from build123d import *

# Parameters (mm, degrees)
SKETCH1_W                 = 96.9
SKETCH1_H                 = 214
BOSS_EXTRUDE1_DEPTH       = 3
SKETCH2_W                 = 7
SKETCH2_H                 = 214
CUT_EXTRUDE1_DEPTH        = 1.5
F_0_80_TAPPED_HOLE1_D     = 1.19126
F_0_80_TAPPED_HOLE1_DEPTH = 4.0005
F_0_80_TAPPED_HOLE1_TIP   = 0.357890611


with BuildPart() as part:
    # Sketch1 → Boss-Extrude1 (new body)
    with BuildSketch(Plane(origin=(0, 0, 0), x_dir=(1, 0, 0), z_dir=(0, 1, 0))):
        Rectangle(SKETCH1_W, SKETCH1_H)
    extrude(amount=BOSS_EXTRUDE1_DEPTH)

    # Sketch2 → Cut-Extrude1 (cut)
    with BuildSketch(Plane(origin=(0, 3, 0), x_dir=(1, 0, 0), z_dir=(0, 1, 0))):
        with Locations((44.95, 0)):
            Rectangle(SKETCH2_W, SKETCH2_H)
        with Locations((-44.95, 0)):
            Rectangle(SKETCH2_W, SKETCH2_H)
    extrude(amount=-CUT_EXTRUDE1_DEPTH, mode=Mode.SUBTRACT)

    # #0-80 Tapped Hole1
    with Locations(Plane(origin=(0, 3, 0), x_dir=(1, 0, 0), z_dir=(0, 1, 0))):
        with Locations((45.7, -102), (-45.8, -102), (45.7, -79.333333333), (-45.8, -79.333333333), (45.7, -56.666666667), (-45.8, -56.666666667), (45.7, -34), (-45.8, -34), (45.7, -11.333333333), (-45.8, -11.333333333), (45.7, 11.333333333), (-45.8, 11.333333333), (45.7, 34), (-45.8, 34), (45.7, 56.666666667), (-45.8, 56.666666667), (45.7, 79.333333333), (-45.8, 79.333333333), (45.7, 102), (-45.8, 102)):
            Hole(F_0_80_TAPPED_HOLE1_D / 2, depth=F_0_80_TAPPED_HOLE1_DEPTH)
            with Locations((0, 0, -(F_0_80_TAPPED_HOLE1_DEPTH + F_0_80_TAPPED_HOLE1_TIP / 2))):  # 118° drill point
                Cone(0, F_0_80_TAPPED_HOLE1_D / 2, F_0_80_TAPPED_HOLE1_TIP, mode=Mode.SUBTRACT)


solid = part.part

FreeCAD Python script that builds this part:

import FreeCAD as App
import Part
import Sketcher
Q = App.Units.Quantity


def add_polygon(sketch, points):
    """Adds a closed chain of lines whose ends are joined by coincident constraints."""
    first, n = sketch.GeometryCount, len(points)
    for a, b in zip(points, points[1:] + points[:1]):
        sketch.addGeometry(Part.LineSegment(App.Vector(*a, 0), App.Vector(*b, 0)), False)
    for i in range(n):
        sketch.addConstraint(Sketcher.Constraint("Coincident", first + i, 2, first + (i + 1) % n, 1))

doc = App.newDocument("Part")
body = doc.addObject("PartDesign::Body", "Body")

# Sketch on XZ plane
sketch1 = body.newObject("Sketcher::SketchObject", "Sketch")
sketch1.AttachmentSupport = (doc.getObject("XZ_Plane"), [""])
sketch1.MapMode = "FlatFace"
add_polygon(sketch1, [(-48.45, -107), (-48.45, 107), (48.45, 107), (48.45, -107)])  # lines 0-3
sketch1.addConstraint([
    Sketcher.Constraint("Vertical", 0),
    Sketcher.Constraint("Horizontal", 1),
    Sketcher.Constraint("Vertical", 2),
    Sketcher.Constraint("Horizontal", 3),
    Sketcher.Constraint("Symmetric", 0, 2, 2, 2, -1, 1),
    Sketcher.Constraint("DistanceY", 0, 1, 0, 2, Q("214 mm")),
    Sketcher.Constraint("DistanceX", 1, 1, 1, 2, Q("96.9 mm")),
])
pad1 = body.newObject("PartDesign::Pad", "Pad")
pad1.Profile = sketch1
pad1.Length = 3
pad1.Reversed = True

# Sketch on XZ plane
sketch2 = body.newObject("Sketcher::SketchObject", "Sketch001")
sketch2.AttachmentSupport = (doc.getObject("XZ_Plane"), [""])
sketch2.MapMode = "FlatFace"
sketch2.AttachmentOffset = App.Placement(App.Vector(0, 0, -3), App.Rotation())
add_polygon(sketch2, [(41.45, -107), (41.45, 107), (48.45, 107), (48.45, -107)])  # lines 0-3
add_polygon(sketch2, [(-48.45, -107), (-48.45, 107), (-41.45, 107), (-41.45, -107)])  # lines 4-7
sketch2.addConstraint([
    Sketcher.Constraint("Vertical", 0),
    Sketcher.Constraint("Horizontal", 1),
    Sketcher.Constraint("Vertical", 2),
    Sketcher.Constraint("Horizontal", 3),
    Sketcher.Constraint("Vertical", 4),
    Sketcher.Constraint("Horizontal", 5),
    Sketcher.Constraint("Vertical", 6),
    Sketcher.Constraint("Horizontal", 7),
    Sketcher.Constraint("Symmetric", 2, 2, 4, 2, -1, 1),
    Sketcher.Constraint("Symmetric", 0, 2, 6, 2, -1, 1),
    Sketcher.Constraint("Horizontal", 1, 2, 4, 2),
    Sketcher.Constraint("DistanceX", 1, 1, 1, 2, Q("7 mm")),
    Sketcher.Constraint("DistanceY", 0, 1, 0, 2, Q("214 mm")),
    Sketcher.Constraint("DistanceX", 4, 2, 0, 2, Q("89.9 mm")),
])
pocket1 = body.newObject("PartDesign::Pocket", "Pocket")
pocket1.Profile = sketch2
pocket1.Length = 1.5
pocket1.Reversed = True

# Sketch on XZ plane
sketch3 = body.newObject("Sketcher::SketchObject", "Sketch002")
sketch3.AttachmentSupport = (doc.getObject("XZ_Plane"), [""])
sketch3.MapMode = "FlatFace"
sketch3.AttachmentOffset = App.Placement(App.Vector(0, 0, -3), App.Rotation())
sketch3.addGeometry([
    Part.Circle(App.Vector(45.7, 102, 0), App.Vector(0, 0, 1), 0.59563),  # 0
    Part.Circle(App.Vector(-45.8, 102, 0), App.Vector(0, 0, 1), 0.59563),  # 1
    Part.Circle(App.Vector(45.7, 79.333333, 0), App.Vector(0, 0, 1), 0.59563),  # 2
    Part.Circle(App.Vector(-45.8, 79.333333, 0), App.Vector(0, 0, 1), 0.59563),  # 3
    Part.Circle(App.Vector(45.7, 56.666667, 0), App.Vector(0, 0, 1), 0.59563),  # 4
    Part.Circle(App.Vector(-45.8, 56.666667, 0), App.Vector(0, 0, 1), 0.59563),  # 5
    Part.Circle(App.Vector(45.7, 34, 0), App.Vector(0, 0, 1), 0.59563),  # 6
    Part.Circle(App.Vector(-45.8, 34, 0), App.Vector(0, 0, 1), 0.59563),  # 7
    Part.Circle(App.Vector(45.7, 11.333333, 0), App.Vector(0, 0, 1), 0.59563),  # 8
    Part.Circle(App.Vector(-45.8, 11.333333, 0), App.Vector(0, 0, 1), 0.59563),  # 9
    Part.Circle(App.Vector(45.7, -11.333333, 0), App.Vector(0, 0, 1), 0.59563),  # 10
    Part.Circle(App.Vector(-45.8, -11.333333, 0), App.Vector(0, 0, 1), 0.59563),  # 11
    Part.Circle(App.Vector(45.7, -34, 0), App.Vector(0, 0, 1), 0.59563),  # 12
    Part.Circle(App.Vector(-45.8, -34, 0), App.Vector(0, 0, 1), 0.59563),  # 13
    Part.Circle(App.Vector(45.7, -56.666667, 0), App.Vector(0, 0, 1), 0.59563),  # 14
    Part.Circle(App.Vector(-45.8, -56.666667, 0), App.Vector(0, 0, 1), 0.59563),  # 15
    Part.Circle(App.Vector(45.7, -79.333333, 0), App.Vector(0, 0, 1), 0.59563),  # 16
    Part.Circle(App.Vector(-45.8, -79.333333, 0), App.Vector(0, 0, 1), 0.59563),  # 17
    Part.Circle(App.Vector(45.7, -102, 0), App.Vector(0, 0, 1), 0.59563),  # 18
    Part.Circle(App.Vector(-45.8, -102, 0), App.Vector(0, 0, 1), 0.59563),  # 19
], False)
sketch3.addConstraint([
    Sketcher.Constraint("Equal", 0, 1),
    Sketcher.Constraint("Equal", 1, 2),
    Sketcher.Constraint("Equal", 2, 3),
    Sketcher.Constraint("Equal", 3, 4),
    Sketcher.Constraint("Equal", 4, 5),
    Sketcher.Constraint("Equal", 5, 6),
    Sketcher.Constraint("Equal", 6, 7),
    Sketcher.Constraint("Equal", 7, 8),
    Sketcher.Constraint("Equal", 8, 9),
    Sketcher.Constraint("Equal", 9, 10),
    Sketcher.Constraint("Equal", 10, 11),
    Sketcher.Constraint("Equal", 11, 12),
    Sketcher.Constraint("Equal", 12, 13),
    Sketcher.Constraint("Equal", 13, 14),
    Sketcher.Constraint("Equal", 14, 15),
    Sketcher.Constraint("Equal", 15, 16),
    Sketcher.Constraint("Equal", 16, 17),
    Sketcher.Constraint("Equal", 17, 18),
    Sketcher.Constraint("Equal", 18, 19),
    Sketcher.Constraint("Symmetric", 8, 3, 10, 3, -1),
    Sketcher.Constraint("Symmetric", 9, 3, 11, 3, -1),
    Sketcher.Constraint("Symmetric", 6, 3, 12, 3, -1),
    Sketcher.Constraint("Symmetric", 7, 3, 13, 3, -1),
    Sketcher.Constraint("Symmetric", 4, 3, 14, 3, -1),
    Sketcher.Constraint("Symmetric", 5, 3, 15, 3, -1),
    Sketcher.Constraint("Symmetric", 2, 3, 16, 3, -1),
    Sketcher.Constraint("Symmetric", 3, 3, 17, 3, -1),
    Sketcher.Constraint("Symmetric", 0, 3, 18, 3, -1),
    Sketcher.Constraint("Symmetric", 1, 3, 19, 3, -1),
    Sketcher.Constraint("Horizontal", 0, 3, 1, 3),
    Sketcher.Constraint("Horizontal", 2, 3, 3, 3),
    Sketcher.Constraint("Horizontal", 4, 3, 5, 3),
    Sketcher.Constraint("Horizontal", 6, 3, 7, 3),
    Sketcher.Constraint("Horizontal", 8, 3, 9, 3),
    Sketcher.Constraint("Vertical", 0, 3, 2, 3),
    Sketcher.Constraint("Vertical", 1, 3, 3, 3),
    Sketcher.Constraint("Vertical", 2, 3, 4, 3),
    Sketcher.Constraint("Vertical", 3, 3, 5, 3),
    Sketcher.Constraint("Vertical", 4, 3, 6, 3),
    Sketcher.Constraint("Vertical", 5, 3, 7, 3),
    Sketcher.Constraint("Vertical", 6, 3, 8, 3),
    Sketcher.Constraint("Vertical", 7, 3, 9, 3),
    Sketcher.Constraint("DistanceY", -1, 1, 0, 3, Q("102 mm")),
    Sketcher.Constraint("DistanceY", -1, 1, 6, 3, Q("34 mm")),
    Sketcher.Constraint("DistanceY", 8, 3, 2, 3, Q("68 mm")),
    Sketcher.Constraint("DistanceY", 10, 3, 4, 3, Q("68 mm")),
    Sketcher.Constraint("DistanceX", -1, 1, 0, 3, Q("45.7 mm")),
    Sketcher.Constraint("DistanceX", 1, 3, -1, 1, Q("45.8 mm")),
    Sketcher.Constraint("Diameter", 0, Q("1.19126 mm")),
    Sketcher.Constraint("DistanceY", -1, 1, 2, 3, Q("79.333333 mm")),
])
doc.recompute()
hole = body.newObject("PartDesign::Hole", "Hole")
hole.Profile = sketch3
hole.ThreadType = "None"
hole.Diameter = 1.19126
hole.DepthType = "Dimension"
hole.Depth = 4.0005
hole.DrillPoint = "Angled"
hole.DrillPointAngle = 118
hole.Reversed = True

doc.recompute()
